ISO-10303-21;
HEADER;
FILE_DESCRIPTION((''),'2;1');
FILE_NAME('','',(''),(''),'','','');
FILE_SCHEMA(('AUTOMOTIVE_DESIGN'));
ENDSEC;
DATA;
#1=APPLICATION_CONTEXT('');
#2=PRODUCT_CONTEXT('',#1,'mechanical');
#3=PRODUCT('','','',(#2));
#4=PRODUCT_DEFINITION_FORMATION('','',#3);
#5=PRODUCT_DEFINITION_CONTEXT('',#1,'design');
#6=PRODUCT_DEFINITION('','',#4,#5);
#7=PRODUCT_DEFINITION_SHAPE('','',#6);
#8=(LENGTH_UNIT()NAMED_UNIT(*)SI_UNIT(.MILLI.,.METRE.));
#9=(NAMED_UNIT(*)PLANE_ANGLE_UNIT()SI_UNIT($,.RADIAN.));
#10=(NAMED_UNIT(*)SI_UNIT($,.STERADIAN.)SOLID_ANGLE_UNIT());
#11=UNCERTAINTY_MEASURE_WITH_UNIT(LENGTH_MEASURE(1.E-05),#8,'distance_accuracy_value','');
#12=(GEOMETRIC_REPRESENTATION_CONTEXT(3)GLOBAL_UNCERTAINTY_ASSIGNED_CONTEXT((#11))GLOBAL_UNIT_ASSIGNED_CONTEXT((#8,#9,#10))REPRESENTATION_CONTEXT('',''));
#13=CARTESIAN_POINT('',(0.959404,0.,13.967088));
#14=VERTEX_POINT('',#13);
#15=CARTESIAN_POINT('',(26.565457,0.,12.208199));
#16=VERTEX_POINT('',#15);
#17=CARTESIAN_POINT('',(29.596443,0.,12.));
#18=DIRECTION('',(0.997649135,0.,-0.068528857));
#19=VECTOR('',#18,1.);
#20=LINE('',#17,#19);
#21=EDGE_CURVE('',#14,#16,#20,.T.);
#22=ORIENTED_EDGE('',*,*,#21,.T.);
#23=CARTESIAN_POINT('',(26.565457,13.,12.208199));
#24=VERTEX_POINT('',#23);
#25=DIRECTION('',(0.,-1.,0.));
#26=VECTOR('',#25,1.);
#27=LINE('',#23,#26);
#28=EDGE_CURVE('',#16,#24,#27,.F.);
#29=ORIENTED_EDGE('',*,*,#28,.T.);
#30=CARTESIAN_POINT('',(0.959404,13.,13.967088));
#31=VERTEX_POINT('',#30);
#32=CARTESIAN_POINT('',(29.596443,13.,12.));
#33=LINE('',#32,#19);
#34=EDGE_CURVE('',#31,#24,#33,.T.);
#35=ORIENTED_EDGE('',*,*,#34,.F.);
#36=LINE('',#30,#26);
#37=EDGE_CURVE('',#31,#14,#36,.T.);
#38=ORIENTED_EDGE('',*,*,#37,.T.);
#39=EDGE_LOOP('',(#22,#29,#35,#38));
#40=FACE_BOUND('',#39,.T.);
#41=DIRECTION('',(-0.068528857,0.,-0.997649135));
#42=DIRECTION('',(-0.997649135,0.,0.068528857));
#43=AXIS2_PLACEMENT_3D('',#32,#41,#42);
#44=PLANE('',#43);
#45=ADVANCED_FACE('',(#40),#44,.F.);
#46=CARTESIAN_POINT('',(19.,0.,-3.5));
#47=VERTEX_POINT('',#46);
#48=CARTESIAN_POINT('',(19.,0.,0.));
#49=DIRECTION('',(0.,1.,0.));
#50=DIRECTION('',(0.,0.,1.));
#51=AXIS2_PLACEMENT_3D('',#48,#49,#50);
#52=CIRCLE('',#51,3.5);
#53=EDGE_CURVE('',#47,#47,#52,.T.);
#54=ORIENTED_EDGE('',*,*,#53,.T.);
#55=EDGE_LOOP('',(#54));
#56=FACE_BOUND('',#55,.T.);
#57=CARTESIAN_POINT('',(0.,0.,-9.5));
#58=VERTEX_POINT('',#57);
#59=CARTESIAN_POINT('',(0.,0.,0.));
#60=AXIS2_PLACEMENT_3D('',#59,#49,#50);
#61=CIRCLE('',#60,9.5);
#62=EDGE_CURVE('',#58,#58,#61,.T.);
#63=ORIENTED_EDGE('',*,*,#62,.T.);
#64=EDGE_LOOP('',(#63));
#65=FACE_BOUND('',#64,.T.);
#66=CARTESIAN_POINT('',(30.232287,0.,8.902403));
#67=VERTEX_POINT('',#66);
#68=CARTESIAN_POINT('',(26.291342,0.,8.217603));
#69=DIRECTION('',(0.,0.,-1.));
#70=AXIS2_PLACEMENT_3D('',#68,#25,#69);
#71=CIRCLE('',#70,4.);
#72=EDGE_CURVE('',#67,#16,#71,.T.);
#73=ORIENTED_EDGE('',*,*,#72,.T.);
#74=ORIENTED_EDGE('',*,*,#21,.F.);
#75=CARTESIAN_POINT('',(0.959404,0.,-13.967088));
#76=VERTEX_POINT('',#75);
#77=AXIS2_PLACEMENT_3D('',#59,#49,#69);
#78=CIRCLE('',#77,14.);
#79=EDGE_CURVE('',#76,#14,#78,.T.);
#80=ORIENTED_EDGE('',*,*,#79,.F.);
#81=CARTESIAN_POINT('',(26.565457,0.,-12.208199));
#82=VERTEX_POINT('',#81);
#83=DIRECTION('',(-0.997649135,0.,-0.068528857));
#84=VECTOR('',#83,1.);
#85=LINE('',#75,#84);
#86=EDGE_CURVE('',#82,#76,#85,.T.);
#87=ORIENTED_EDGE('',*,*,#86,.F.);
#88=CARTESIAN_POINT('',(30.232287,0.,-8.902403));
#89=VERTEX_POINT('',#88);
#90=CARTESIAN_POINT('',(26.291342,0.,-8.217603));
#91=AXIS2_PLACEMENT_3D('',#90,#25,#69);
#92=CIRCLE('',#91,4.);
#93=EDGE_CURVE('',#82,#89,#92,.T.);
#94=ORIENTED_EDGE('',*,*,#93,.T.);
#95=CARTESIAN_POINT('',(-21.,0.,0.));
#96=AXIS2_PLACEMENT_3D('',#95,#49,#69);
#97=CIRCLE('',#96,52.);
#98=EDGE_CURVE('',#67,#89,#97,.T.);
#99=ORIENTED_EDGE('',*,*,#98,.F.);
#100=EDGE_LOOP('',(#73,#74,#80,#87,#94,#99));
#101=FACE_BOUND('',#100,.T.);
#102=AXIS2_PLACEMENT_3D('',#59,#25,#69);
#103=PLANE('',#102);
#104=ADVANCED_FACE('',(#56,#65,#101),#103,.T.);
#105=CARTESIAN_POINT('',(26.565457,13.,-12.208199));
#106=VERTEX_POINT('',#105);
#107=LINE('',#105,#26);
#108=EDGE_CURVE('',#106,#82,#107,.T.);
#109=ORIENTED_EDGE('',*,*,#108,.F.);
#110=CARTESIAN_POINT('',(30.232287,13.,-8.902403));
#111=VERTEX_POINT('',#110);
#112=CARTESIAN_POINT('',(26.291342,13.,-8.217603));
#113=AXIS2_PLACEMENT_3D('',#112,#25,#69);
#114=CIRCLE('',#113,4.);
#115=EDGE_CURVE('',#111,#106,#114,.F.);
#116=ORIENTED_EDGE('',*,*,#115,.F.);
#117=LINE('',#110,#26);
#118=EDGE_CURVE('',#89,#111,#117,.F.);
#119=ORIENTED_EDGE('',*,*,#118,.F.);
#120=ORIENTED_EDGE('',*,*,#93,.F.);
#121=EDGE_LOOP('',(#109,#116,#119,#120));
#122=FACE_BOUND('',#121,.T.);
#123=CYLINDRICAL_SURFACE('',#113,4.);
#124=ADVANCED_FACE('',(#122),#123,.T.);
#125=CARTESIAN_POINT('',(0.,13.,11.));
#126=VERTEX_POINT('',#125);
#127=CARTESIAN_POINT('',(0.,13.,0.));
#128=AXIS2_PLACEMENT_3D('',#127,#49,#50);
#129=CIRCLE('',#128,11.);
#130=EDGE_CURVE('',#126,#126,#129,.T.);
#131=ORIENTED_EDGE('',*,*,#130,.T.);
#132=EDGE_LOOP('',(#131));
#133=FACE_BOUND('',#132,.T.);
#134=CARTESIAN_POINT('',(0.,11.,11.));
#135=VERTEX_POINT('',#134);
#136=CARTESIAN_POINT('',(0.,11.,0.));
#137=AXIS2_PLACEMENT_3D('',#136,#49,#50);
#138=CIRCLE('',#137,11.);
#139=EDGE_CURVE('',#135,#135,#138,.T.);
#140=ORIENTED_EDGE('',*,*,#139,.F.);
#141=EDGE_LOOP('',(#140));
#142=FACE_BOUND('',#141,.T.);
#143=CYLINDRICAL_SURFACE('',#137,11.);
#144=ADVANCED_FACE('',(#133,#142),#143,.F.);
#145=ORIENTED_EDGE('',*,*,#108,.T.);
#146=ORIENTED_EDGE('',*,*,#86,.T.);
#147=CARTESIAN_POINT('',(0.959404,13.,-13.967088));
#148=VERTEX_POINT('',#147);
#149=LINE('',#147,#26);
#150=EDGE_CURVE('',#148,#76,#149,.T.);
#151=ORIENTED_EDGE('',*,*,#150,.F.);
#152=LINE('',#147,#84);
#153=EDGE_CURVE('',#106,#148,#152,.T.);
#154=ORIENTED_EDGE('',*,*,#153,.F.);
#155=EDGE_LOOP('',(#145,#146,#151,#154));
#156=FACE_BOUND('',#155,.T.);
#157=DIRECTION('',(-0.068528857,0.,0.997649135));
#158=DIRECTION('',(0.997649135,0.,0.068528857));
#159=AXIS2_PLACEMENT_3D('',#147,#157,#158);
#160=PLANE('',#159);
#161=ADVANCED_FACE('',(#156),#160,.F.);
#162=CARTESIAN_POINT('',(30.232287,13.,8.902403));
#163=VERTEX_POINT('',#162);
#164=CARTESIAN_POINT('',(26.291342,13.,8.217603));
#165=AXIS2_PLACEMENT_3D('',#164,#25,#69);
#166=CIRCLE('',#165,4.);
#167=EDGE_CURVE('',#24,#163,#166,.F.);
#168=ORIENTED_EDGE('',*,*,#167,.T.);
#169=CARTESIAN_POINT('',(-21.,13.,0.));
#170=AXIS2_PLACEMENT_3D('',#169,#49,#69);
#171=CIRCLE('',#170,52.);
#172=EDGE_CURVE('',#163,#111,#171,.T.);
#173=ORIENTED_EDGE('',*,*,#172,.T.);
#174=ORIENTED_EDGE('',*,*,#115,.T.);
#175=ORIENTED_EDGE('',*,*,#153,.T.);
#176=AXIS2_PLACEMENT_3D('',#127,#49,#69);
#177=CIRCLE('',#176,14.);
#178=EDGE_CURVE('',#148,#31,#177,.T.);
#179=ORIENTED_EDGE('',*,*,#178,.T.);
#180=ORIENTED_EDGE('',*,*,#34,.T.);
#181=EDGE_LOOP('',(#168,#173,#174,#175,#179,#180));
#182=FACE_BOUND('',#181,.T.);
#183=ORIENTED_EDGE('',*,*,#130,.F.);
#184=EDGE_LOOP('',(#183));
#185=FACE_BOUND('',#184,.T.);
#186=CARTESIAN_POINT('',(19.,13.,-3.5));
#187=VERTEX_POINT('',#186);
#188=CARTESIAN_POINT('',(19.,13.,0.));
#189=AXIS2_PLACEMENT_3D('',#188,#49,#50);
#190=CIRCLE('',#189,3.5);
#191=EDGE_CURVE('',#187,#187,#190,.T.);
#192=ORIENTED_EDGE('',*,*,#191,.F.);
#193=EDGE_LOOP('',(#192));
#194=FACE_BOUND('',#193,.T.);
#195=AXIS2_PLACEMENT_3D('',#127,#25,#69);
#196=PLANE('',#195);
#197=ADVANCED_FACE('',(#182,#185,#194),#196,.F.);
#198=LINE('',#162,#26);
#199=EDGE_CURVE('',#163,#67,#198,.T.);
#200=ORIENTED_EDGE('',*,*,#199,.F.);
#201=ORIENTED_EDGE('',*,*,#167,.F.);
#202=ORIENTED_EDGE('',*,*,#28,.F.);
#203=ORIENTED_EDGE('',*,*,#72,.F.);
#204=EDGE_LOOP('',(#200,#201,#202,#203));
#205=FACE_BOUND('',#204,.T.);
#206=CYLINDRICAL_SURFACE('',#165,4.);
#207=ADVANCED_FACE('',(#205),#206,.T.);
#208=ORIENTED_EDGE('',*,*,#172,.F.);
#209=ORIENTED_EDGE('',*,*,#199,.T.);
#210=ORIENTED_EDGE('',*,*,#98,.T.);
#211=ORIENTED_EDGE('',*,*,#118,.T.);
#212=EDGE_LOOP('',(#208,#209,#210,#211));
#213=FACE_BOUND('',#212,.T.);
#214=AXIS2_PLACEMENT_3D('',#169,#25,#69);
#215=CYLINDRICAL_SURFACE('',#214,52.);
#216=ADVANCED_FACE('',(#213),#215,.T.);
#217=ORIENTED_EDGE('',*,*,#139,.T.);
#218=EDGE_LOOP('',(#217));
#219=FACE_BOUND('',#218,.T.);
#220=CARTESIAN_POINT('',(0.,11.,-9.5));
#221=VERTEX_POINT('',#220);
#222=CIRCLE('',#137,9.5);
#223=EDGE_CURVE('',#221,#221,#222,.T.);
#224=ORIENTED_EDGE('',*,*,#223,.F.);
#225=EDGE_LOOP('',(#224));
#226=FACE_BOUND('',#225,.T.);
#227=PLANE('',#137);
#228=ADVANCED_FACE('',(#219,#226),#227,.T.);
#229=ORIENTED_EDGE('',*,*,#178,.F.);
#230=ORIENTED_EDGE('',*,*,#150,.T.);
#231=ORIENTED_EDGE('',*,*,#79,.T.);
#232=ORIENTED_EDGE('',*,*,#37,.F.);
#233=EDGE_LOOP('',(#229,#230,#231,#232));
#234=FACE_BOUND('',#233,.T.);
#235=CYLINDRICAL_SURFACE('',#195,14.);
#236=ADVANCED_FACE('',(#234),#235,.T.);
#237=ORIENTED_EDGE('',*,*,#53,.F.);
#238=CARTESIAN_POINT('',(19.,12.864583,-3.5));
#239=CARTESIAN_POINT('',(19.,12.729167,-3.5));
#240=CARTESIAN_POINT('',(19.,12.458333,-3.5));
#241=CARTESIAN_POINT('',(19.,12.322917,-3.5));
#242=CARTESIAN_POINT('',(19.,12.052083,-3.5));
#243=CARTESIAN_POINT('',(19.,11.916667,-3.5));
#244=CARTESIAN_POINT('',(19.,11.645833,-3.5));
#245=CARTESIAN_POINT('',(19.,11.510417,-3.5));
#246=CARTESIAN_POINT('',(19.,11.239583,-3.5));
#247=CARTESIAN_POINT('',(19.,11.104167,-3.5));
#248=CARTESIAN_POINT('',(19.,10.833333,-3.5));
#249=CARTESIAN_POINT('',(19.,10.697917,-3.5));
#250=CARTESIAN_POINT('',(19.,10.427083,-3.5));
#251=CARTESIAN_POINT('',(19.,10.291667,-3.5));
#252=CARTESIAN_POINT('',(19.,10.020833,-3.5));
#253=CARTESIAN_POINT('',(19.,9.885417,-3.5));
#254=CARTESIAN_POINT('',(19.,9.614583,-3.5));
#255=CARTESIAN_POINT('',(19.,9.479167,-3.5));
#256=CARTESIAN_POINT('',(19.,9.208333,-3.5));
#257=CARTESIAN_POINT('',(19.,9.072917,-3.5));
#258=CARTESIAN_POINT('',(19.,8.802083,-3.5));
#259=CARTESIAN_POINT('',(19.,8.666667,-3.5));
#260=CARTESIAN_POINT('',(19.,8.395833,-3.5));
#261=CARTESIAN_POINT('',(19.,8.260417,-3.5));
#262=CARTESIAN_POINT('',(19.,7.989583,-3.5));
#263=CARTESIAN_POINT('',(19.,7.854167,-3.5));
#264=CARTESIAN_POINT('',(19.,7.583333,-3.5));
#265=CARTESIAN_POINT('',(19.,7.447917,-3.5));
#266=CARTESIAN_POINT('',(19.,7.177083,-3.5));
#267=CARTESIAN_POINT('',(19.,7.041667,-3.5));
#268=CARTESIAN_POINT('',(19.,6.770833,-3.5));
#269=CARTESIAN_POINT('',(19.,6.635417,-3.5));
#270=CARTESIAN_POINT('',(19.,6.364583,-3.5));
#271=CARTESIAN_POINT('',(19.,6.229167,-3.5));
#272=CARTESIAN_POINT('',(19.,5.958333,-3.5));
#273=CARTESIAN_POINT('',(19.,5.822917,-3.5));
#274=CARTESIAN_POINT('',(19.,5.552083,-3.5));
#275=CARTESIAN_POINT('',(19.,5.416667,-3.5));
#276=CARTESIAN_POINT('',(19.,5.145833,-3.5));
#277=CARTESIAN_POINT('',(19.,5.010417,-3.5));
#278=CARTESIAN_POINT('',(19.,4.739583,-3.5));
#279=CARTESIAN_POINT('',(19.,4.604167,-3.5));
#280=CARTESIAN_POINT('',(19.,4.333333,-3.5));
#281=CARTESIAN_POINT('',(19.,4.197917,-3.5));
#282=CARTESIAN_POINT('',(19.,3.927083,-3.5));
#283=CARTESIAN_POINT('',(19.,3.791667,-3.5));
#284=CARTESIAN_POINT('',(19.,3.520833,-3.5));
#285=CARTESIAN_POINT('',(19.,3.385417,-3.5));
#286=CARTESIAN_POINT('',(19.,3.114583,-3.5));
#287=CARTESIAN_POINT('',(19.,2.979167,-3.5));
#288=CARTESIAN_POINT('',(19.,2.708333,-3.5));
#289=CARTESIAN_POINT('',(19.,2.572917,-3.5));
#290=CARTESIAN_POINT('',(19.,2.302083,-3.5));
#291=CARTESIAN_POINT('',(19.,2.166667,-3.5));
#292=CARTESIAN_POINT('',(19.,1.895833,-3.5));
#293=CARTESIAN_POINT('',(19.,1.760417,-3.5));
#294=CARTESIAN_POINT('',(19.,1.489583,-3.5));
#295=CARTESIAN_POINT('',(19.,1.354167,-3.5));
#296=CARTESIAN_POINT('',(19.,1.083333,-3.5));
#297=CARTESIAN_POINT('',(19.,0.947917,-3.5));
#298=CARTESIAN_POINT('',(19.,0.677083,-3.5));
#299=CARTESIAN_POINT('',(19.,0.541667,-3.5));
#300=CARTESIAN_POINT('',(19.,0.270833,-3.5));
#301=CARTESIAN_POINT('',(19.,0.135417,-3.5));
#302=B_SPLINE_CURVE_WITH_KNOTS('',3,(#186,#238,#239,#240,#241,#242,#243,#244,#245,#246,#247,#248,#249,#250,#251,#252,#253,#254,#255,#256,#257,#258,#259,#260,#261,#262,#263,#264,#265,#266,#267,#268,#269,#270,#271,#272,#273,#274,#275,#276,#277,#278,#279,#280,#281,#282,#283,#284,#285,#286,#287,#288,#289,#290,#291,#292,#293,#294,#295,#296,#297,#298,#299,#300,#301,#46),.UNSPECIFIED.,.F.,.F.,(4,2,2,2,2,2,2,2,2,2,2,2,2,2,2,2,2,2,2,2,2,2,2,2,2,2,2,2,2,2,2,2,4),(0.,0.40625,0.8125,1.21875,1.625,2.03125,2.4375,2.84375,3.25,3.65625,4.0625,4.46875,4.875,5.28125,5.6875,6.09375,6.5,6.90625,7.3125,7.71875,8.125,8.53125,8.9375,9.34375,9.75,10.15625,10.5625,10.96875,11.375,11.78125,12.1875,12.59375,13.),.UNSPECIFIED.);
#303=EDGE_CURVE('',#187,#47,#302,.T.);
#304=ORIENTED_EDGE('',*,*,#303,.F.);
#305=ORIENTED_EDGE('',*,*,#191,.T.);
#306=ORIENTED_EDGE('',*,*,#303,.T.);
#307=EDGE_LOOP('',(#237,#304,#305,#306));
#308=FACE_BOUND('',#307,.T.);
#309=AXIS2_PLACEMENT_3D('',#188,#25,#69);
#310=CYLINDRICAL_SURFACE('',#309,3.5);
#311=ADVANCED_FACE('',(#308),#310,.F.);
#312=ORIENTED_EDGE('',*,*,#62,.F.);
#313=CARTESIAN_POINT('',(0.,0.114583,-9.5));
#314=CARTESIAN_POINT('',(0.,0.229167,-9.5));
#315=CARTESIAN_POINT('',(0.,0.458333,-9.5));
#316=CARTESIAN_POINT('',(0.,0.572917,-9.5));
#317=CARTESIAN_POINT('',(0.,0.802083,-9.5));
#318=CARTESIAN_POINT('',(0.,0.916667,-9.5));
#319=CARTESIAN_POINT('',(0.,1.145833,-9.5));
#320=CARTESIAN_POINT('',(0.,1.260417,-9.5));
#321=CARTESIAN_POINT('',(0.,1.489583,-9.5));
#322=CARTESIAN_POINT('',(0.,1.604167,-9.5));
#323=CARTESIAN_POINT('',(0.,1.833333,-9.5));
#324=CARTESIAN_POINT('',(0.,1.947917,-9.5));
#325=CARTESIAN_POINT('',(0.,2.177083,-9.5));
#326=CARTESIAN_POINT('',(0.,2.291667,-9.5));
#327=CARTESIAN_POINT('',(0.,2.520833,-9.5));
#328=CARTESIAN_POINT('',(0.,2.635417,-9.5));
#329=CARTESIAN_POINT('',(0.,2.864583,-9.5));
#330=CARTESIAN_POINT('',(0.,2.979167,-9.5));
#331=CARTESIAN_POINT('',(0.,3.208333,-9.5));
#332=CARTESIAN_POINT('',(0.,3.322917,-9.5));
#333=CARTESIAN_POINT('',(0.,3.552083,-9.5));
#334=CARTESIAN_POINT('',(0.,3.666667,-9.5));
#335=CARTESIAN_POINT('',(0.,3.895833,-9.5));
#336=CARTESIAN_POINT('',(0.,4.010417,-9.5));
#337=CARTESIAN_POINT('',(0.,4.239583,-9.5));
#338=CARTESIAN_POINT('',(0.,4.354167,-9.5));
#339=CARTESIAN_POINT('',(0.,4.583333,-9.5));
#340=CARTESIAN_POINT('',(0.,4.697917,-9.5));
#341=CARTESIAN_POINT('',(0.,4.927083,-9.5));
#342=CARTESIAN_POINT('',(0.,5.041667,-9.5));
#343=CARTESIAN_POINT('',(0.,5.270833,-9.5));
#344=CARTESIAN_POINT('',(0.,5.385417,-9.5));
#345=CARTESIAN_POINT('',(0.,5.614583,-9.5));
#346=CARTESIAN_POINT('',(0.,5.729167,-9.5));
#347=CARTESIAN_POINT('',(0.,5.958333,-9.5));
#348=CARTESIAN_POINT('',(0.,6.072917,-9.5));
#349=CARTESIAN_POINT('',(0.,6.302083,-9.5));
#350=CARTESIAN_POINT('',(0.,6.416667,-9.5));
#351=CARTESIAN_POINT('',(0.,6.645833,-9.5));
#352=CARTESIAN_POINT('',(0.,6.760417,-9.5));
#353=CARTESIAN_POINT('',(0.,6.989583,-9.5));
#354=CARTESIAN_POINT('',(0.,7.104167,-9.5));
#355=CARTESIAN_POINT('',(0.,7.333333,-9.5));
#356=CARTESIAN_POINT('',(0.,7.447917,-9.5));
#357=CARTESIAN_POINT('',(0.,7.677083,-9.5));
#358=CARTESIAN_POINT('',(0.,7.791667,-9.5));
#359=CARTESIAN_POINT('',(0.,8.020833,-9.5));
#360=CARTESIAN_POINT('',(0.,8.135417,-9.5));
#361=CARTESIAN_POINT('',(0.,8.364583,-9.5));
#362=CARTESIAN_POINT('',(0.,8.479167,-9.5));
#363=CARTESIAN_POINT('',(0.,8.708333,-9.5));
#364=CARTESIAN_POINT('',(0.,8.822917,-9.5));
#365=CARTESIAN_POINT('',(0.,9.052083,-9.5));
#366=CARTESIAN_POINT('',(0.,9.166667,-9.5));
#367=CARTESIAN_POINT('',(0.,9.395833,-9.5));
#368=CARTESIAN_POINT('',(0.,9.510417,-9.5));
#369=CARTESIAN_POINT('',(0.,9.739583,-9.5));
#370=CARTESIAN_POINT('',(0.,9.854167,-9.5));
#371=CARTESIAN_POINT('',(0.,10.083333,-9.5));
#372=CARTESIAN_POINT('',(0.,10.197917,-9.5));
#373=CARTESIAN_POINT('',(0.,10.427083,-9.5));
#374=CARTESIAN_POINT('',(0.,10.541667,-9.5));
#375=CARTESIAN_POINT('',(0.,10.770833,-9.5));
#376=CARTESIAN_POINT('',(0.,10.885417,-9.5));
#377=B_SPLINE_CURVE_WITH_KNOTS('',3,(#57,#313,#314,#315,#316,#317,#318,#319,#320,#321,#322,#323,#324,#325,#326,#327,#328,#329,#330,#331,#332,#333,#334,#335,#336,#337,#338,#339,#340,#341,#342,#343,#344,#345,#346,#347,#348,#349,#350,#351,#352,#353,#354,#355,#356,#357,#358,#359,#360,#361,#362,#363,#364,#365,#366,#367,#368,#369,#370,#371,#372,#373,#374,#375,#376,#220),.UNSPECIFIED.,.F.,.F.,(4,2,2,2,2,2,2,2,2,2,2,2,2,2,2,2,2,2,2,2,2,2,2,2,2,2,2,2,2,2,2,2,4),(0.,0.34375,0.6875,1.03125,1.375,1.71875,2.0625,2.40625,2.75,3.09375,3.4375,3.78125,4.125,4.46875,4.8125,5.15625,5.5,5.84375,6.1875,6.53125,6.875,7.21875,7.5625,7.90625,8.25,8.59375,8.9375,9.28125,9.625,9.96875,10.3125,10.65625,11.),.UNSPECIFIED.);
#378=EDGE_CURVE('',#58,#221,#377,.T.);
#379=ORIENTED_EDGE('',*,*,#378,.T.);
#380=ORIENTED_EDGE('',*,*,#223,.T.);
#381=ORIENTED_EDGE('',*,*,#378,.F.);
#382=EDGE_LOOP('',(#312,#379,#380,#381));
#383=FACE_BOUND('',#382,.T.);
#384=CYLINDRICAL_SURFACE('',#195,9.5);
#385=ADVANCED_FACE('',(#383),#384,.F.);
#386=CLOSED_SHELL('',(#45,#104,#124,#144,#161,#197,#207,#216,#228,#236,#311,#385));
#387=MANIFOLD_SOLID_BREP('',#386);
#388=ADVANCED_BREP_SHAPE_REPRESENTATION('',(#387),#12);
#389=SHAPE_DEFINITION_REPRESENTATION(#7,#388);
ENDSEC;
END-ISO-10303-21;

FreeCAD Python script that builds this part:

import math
import FreeCAD as App
import Part
import Sketcher
from FreeCAD import Vector


def edges_at(feature, points):
    """Names of the edges that pass closest to the given points."""
    edges = feature.Shape.Edges
    near = lambda p: min(range(len(edges)), key=lambda i: edges[i].distToShape(Part.Vertex(*p))[0])
    return sorted({f"Edge{near(p) + 1}" for p in points})

doc = App.newDocument("Part")
body = doc.addObject("PartDesign::Body", "Body")

# Sketch on XZ plane
sketch1 = body.newObject("Sketcher::SketchObject", "Sketch")
sketch1.AttachmentSupport = (doc.getObject("XZ_Plane"), [""])
sketch1.MapMode = "FlatFace"
sketch1.addGeometry([
    Part.LineSegment(Vector(29.6, -12, 0), Vector(1, -14, 0)),  # 0
    Part.ArcOfCircle(Part.Circle(Vector(0, 0, 0), Vector(0, 0, 1), 14), math.radians(86), math.radians(274)),  # 1
    Part.LineSegment(Vector(1, 14, 0), Vector(29.6, 12, 0)),  # 2
    Part.ArcOfCircle(Part.Circle(Vector(-21, 0, 0), Vector(0, 0, 1), 52), math.radians(-13), math.radians(13)),  # 3
    Part.Circle(Vector(19, 0, 0), Vector(0, 0, 1), 3.5),  # 4
    Part.Circle(Vector(0, 0, 0), Vector(0, 0, 1), 9.5),  # 5
], False)
sketch1.addConstraint([
    Sketcher.Constraint("Tangent", 0, 2, 1, 2),
    Sketcher.Constraint("Tangent", 1, 1, 2, 1),
    Sketcher.Constraint("Coincident", 2, 2, 3, 2),
    Sketcher.Constraint("Coincident", 3, 1, 0, 1),
    Sketcher.Constraint("Coincident", 1, 3, -1, 1),
    Sketcher.Constraint("Coincident", 5, 3, -1, 1),
    Sketcher.Constraint("Symmetric", 2, 2, 3, 1, -1),
    Sketcher.Constraint("PointOnObject", 4, 3, -1),
    Sketcher.Constraint("Diameter", 4, 7.0),
    Sketcher.Constraint("Diameter", 5, 19.0),
    Sketcher.Constraint("Radius", 1, 14.0),
    Sketcher.Constraint("Radius", 3, 52.0),
    Sketcher.Constraint("DistanceX", 3, 3, -1, 1, 21.0),
    Sketcher.Constraint("DistanceX", -1, 1, 4, 3, 19.0),
    Sketcher.Constraint("DistanceY", -1, 1, 2, 2, 12.0),
])
pad1 = body.newObject("PartDesign::Pad", "Pad")
pad1.Profile = sketch1
pad1.Length = 13
pad1.Reversed = True
doc.recompute()

fillet = body.newObject("PartDesign::Fillet", "Fillet")
fillet.Base = (pad1, edges_at(pad1, [(29.596, 6.5, -12), (29.596, 6.5, 12)]))
fillet.Radius = 4

# Sketch on XZ plane
sketch2 = body.newObject("Sketcher::SketchObject", "Sketch001")
sketch2.AttachmentSupport = (doc.getObject("XZ_Plane"), [""])
sketch2.MapMode = "FlatFace"
sketch2.AttachmentOffset = App.Placement(Vector(0, 0, -13), App.Rotation())
sketch2.addGeometry(Part.Circle(Vector(0, 0, 0), Vector(0, 0, 1), 11), False)
sketch2.addConstraint([
    Sketcher.Constraint("Coincident", 0, 3, -1, 1),
    Sketcher.Constraint("Diameter", 0, 22.0),
])
pocket1 = body.newObject("PartDesign::Pocket", "Pocket")
pocket1.Profile = sketch2
pocket1.Length = 2
pocket1.Reversed = True

doc.recompute()
